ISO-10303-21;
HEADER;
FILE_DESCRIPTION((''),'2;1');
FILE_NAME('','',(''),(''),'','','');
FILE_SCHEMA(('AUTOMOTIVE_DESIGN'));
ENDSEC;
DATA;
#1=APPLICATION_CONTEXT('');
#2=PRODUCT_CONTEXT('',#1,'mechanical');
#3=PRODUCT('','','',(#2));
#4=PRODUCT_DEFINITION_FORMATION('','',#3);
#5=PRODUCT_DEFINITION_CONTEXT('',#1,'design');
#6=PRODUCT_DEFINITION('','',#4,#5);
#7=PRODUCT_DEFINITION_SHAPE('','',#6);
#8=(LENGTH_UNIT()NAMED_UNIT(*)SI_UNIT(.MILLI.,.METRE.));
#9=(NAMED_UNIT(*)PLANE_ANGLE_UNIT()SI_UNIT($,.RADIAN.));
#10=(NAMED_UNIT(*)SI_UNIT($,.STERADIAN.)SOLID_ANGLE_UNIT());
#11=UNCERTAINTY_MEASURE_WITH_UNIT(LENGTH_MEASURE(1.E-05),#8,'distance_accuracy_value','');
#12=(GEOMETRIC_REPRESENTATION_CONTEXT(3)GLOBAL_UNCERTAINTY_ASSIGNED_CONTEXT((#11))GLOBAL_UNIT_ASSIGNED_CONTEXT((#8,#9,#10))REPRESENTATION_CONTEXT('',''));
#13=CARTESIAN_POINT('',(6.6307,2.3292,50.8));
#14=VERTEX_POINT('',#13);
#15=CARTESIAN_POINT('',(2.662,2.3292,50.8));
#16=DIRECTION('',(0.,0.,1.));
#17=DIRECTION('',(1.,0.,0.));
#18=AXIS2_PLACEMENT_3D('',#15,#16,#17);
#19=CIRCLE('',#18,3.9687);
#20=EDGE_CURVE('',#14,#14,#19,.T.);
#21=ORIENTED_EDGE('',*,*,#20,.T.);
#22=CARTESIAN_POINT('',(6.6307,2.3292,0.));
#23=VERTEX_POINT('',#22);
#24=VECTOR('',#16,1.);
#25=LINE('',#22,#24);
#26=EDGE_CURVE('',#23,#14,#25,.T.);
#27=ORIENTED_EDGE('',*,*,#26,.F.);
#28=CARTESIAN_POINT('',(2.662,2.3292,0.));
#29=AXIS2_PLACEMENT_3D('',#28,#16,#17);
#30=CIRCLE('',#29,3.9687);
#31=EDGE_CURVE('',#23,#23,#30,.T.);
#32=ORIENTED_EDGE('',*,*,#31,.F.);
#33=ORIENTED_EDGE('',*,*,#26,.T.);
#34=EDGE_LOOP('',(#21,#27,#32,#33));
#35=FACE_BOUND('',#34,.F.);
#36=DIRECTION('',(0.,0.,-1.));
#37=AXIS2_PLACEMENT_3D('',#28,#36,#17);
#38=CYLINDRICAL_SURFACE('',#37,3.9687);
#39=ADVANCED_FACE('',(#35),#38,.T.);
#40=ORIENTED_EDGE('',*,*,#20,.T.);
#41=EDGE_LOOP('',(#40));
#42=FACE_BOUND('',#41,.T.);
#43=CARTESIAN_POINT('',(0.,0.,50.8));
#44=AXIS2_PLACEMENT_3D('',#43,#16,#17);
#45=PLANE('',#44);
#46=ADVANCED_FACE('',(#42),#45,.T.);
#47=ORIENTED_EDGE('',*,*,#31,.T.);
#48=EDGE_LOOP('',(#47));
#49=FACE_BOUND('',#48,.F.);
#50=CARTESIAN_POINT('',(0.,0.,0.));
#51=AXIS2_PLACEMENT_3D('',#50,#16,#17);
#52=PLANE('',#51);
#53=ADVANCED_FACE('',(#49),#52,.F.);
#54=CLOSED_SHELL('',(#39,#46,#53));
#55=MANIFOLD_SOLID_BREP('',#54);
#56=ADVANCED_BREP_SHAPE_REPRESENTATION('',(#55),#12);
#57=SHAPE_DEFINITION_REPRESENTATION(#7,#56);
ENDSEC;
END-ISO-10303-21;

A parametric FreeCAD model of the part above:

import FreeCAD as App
import Part
import Sketcher
from FreeCAD import Vector
Q = App.Units.Quantity

doc = App.newDocument("Part")
body = doc.addObject("PartDesign::Body", "Body")

sketch1 = doc.addObject("Sketcher::SketchObject", "Sketch")
body.addObject(sketch1)
sketch1.AttachmentSupport = (doc.XY_Plane, [""])
sketch1.MapMode = "FlatFace"
sketch1.addGeometry(Part.Circle(Vector(2.7, 2.3, 0), Vector(0, 0, 1), 4), False)
sketch1.addConstraint([
    Sketcher.Constraint("Diameter", 0, Q("0.3125 in")),
    Sketcher.Constraint("DistanceX", -1, 1, 0, 3, Q("0.1048 in")),
    Sketcher.Constraint("DistanceY", -1, 1, 0, 3, Q("0.0917 in")),
])
pad1 = doc.addObject("PartDesign::Pad", "Pad")
body.addObject(pad1)
pad1.Profile = sketch1
pad1.Length = Q("2 in")

doc.recompute()
